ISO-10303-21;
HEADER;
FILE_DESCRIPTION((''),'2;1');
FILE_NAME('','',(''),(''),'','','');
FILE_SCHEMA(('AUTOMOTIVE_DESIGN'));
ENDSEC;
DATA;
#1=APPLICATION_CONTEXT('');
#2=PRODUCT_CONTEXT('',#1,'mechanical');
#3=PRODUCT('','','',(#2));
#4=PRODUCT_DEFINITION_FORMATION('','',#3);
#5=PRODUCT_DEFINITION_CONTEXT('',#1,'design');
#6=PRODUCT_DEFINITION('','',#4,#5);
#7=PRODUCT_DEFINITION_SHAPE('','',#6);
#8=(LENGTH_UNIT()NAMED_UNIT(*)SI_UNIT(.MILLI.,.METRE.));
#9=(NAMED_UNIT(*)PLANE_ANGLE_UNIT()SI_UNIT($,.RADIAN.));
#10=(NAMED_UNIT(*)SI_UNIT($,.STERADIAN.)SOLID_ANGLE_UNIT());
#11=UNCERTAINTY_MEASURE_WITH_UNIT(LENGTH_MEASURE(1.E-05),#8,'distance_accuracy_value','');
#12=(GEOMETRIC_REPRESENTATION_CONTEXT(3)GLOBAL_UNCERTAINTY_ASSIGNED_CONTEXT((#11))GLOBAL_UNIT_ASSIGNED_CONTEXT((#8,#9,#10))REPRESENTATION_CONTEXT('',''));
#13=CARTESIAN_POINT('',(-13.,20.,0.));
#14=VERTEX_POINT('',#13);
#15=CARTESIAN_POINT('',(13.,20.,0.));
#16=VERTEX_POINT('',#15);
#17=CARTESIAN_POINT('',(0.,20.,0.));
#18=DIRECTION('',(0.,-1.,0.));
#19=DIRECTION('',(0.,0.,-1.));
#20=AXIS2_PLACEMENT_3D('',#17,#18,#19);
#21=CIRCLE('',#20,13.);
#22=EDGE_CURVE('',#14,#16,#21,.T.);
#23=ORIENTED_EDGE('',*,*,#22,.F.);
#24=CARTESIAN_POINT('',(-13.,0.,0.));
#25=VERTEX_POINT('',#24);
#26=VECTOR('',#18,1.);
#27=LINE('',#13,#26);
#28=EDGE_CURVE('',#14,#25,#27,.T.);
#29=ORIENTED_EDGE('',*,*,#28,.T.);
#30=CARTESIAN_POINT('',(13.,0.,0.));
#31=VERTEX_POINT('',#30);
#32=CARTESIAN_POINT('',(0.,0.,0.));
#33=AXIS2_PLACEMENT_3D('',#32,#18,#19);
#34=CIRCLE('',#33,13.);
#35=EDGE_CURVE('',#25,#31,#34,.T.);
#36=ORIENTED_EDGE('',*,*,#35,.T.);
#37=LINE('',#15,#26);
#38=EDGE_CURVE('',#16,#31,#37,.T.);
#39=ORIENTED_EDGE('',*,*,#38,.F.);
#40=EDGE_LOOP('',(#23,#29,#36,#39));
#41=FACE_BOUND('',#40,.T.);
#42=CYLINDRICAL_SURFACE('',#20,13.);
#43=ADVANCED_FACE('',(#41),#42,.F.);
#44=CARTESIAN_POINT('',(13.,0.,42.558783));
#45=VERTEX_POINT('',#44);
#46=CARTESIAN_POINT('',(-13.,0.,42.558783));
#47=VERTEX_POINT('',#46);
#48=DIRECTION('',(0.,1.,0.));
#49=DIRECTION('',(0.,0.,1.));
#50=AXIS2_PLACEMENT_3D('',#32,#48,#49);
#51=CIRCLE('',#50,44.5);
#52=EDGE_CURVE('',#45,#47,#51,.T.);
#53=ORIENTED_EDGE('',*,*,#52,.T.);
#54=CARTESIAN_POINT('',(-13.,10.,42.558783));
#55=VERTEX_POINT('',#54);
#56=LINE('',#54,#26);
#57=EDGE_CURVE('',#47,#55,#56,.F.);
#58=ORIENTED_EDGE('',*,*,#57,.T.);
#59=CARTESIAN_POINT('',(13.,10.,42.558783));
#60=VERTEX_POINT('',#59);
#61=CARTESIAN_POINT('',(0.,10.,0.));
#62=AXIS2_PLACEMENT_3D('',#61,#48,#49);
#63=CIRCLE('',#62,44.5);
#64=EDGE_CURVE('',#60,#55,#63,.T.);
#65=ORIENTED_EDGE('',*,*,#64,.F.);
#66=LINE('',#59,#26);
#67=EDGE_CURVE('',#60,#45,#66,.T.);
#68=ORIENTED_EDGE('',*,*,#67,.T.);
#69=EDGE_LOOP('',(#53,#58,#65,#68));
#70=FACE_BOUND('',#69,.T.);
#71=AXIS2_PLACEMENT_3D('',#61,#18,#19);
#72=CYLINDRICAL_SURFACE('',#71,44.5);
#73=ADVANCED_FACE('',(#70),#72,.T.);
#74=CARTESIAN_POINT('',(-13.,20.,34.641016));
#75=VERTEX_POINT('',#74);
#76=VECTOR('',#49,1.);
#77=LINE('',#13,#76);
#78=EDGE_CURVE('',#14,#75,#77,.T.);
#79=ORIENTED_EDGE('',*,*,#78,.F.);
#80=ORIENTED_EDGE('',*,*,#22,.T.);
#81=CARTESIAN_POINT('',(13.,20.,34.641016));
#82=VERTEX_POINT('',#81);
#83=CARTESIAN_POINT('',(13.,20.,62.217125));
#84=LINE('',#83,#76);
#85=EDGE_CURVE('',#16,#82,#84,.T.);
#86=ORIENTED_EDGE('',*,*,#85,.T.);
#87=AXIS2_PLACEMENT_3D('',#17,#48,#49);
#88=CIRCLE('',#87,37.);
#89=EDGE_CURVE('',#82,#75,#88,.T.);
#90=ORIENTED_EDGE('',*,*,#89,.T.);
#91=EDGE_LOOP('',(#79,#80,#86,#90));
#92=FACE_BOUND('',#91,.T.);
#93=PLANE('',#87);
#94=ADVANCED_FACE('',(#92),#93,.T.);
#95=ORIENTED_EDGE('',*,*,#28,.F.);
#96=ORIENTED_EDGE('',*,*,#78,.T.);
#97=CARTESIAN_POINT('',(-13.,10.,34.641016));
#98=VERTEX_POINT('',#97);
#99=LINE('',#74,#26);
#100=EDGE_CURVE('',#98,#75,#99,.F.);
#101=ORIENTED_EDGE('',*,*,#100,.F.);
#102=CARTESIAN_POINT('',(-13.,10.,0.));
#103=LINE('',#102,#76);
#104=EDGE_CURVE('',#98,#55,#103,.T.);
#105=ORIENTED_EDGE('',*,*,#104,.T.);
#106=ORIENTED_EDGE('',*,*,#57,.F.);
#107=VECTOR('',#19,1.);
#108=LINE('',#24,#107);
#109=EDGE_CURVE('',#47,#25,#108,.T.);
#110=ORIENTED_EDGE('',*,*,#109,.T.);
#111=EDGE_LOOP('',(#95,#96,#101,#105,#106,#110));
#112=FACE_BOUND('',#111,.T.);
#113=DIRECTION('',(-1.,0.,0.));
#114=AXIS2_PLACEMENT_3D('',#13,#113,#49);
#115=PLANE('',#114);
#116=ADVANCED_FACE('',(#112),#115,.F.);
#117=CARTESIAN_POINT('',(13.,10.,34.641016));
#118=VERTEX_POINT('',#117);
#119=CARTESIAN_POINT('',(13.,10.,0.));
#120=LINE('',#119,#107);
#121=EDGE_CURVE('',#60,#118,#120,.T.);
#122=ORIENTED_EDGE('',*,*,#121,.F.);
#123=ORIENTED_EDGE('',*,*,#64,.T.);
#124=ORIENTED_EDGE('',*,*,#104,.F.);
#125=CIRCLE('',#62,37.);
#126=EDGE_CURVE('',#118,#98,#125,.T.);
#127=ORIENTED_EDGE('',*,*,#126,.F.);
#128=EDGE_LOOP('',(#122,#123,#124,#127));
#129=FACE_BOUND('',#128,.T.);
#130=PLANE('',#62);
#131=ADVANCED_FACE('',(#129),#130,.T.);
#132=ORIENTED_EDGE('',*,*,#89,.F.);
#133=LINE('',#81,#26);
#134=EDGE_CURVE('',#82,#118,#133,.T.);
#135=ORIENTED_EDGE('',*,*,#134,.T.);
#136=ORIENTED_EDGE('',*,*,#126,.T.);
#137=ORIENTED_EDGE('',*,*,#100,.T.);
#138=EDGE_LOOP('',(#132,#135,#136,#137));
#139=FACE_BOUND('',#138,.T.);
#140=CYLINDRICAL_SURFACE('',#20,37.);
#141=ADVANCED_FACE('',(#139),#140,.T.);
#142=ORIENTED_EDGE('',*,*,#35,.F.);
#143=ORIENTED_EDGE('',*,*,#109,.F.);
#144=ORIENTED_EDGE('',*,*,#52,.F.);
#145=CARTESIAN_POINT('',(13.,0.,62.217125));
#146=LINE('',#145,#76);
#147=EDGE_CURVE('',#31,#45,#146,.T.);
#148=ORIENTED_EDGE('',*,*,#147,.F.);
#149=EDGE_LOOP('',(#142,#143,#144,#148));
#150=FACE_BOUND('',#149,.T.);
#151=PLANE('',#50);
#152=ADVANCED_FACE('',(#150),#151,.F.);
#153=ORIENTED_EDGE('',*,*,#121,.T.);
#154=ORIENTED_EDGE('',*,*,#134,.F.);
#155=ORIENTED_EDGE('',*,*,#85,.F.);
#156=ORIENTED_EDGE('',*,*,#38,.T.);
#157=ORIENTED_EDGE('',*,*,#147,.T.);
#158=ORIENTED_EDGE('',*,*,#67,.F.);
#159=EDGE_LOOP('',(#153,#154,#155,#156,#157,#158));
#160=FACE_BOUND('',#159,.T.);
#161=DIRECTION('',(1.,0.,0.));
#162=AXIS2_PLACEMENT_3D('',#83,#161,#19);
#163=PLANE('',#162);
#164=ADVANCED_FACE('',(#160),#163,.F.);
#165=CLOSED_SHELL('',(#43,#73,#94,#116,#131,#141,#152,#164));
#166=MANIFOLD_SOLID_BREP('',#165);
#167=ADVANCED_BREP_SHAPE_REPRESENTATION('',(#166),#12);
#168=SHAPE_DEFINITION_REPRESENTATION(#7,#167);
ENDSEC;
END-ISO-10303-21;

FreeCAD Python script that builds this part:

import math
import FreeCAD as App
import Part
import Sketcher

doc = App.newDocument("Part")
body = doc.addObject("PartDesign::Body", "Body")

# Sketch on XZ plane
sketch1 = doc.addObject("Sketcher::SketchObject", "Sketch")
body.addObject(sketch1)
sketch1.AttachmentSupport = (doc.XZ_Plane, [""])
sketch1.MapMode = "FlatFace"
sketch1.addGeometry(Part.Circle(App.Vector(0, 0, 0), App.Vector(0, 0, 1), 44.5), False)
sketch1.addConstraint(Sketcher.Constraint("Coincident", 0, 3, -1, 1))
sketch1.addConstraint(Sketcher.Constraint("Diameter", 0, 89.0))
pad1 = doc.addObject("PartDesign::Pad", "Pad")
body.addObject(pad1)
pad1.Profile = sketch1
pad1.Length = 10
pad1.Reversed = True

# Sketch on XZ plane
sketch2 = doc.addObject("Sketcher::SketchObject", "Sketch001")
body.addObject(sketch2)
sketch2.AttachmentSupport = (doc.XZ_Plane, [""])
sketch2.MapMode = "FlatFace"
sketch2.AttachmentOffset = App.Placement(App.Vector(0, 0, -10), App.Rotation())
sketch2.addGeometry(Part.Circle(App.Vector(0, 0, 0), App.Vector(0, 0, 1), 37), False)
sketch2.addConstraint(Sketcher.Constraint("Coincident", 0, 3, -1, 1))
sketch2.addConstraint(Sketcher.Constraint("Diameter", 0, 74.0))
pad2 = doc.addObject("PartDesign::Pad", "Pad001")
body.addObject(pad2)
pad2.Profile = sketch2
pad2.Length = 10
pad2.Reversed = True

# Sketch on XZ plane
sketch3 = doc.addObject("Sketcher::SketchObject", "Sketch002")
body.addObject(sketch3)
sketch3.AttachmentSupport = (doc.XZ_Plane, [""])
sketch3.MapMode = "FlatFace"
sketch3.addGeometry(Part.LineSegment(App.Vector(-13, 62.217125, 0), App.Vector(-13, 0, 0)), False)
sketch3.addGeometry(Part.ArcOfCircle(Part.Circle(App.Vector(0, 0, 0), App.Vector(0, 0, 1), 13), math.radians(180), math.radians(360)), False)
sketch3.addGeometry(Part.LineSegment(App.Vector(13, 0, 0), App.Vector(13, 62.217125, 0)), False)
sketch3.addGeometry(Part.LineSegment(App.Vector(13, 62.217125, 0), App.Vector(-13, 62.217125, 0)), False)
sketch3.addConstraint(Sketcher.Constraint("Tangent", 0, 2, 1, 1))
sketch3.addConstraint(Sketcher.Constraint("Tangent", 1, 2, 2, 1))
sketch3.addConstraint(Sketcher.Constraint("Coincident", 2, 2, 3, 1))
sketch3.addConstraint(Sketcher.Constraint("Coincident", 3, 2, 0, 1))
sketch3.addConstraint(Sketcher.Constraint("Vertical", 0))
sketch3.addConstraint(Sketcher.Constraint("Vertical", 2))
sketch3.addConstraint(Sketcher.Constraint("Horizontal", 3))
sketch3.addConstraint(Sketcher.Constraint("Coincident", 1, 3, -1, 1))
sketch3.addConstraint(Sketcher.Constraint("Radius", 1, 13.0))
sketch3.addConstraint(Sketcher.Constraint("DistanceY", 0, 2, 0, 1, 62.217125))
pocket1 = doc.addObject("PartDesign::Pocket", "Pocket")
body.addObject(pocket1)
pocket1.Profile = sketch3
pocket1.Type = "ThroughAll"

doc.recompute()
